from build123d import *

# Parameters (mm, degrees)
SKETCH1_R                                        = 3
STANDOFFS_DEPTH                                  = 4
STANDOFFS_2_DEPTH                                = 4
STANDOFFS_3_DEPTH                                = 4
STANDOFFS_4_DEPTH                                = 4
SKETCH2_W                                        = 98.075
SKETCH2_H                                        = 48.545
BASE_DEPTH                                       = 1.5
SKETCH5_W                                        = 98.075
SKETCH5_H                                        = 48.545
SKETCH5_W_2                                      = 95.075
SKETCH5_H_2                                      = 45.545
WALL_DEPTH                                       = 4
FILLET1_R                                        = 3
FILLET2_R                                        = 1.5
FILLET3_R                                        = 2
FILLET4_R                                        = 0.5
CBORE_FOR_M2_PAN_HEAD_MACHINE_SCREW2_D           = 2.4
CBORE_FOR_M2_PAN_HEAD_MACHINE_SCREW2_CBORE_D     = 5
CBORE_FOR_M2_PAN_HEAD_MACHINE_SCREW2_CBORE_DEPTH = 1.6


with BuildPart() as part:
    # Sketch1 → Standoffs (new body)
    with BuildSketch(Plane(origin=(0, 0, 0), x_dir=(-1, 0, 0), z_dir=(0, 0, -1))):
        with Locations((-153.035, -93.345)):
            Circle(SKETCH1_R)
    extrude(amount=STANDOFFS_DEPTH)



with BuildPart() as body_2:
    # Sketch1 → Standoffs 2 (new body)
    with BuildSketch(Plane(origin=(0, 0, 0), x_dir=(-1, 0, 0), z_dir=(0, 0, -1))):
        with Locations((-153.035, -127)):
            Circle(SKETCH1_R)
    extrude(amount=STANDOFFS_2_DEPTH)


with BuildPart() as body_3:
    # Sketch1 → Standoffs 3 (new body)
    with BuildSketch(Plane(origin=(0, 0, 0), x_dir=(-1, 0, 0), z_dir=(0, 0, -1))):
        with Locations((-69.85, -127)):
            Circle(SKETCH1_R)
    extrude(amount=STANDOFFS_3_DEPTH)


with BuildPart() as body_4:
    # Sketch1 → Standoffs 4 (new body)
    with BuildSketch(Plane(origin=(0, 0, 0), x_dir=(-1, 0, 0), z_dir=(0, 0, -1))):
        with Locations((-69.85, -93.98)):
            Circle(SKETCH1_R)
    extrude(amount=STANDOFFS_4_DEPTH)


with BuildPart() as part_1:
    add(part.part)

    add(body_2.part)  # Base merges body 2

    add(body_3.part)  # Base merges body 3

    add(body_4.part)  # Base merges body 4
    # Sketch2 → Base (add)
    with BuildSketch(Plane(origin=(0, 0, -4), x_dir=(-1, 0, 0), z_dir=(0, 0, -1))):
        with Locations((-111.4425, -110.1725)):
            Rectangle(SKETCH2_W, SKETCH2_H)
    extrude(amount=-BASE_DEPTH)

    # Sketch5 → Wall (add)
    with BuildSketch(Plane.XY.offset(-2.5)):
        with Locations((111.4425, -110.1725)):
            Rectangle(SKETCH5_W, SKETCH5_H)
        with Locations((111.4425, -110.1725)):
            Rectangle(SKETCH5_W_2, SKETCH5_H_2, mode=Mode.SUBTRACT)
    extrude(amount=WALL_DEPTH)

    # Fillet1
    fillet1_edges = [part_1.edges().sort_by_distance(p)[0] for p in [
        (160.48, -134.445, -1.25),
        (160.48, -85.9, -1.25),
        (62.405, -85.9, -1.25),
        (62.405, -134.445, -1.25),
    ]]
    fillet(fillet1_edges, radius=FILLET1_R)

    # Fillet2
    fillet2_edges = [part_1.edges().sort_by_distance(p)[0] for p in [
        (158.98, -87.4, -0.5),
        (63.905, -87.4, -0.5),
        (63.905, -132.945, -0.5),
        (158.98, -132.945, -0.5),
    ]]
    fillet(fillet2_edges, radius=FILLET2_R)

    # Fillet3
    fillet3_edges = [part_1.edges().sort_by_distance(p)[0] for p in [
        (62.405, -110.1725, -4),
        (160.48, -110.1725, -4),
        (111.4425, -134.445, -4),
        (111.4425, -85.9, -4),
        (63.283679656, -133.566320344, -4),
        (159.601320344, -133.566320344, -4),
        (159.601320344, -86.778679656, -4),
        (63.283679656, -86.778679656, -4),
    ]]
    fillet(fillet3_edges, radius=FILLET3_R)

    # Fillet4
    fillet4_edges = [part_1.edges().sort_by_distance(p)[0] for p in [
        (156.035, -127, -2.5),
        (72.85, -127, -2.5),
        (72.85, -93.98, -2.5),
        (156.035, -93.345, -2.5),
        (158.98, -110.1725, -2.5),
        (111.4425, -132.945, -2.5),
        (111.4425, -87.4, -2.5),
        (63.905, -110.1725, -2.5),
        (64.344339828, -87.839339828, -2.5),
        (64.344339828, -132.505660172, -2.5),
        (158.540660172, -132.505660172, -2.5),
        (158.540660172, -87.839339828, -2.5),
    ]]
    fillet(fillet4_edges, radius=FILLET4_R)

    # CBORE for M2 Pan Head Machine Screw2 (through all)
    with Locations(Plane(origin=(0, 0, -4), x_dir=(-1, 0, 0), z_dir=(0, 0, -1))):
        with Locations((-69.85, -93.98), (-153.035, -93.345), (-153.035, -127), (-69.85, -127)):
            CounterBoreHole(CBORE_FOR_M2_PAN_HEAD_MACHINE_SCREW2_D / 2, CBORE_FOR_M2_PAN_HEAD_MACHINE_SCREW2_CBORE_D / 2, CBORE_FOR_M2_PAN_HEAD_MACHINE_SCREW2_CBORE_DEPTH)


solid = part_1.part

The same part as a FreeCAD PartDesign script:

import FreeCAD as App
import Part
import Sketcher
from FreeCAD import Vector
Q = App.Units.Quantity


def edges_at(feature, points):
    """Names of the edges that pass closest to the given points."""
    edges = feature.Shape.Edges
    near = lambda p: min(range(len(edges)), key=lambda i: edges[i].distToShape(Part.Vertex(*p))[0])
    return sorted({f"Edge{near(p) + 1}" for p in points})

doc = App.newDocument("Part")
body = doc.addObject("PartDesign::Body", "Body")

# Sketch on XY plane
sketch1 = doc.addObject("Sketcher::SketchObject", "Sketch")
body.addObject(sketch1)
sketch1.AttachmentSupport = (doc.XY_Plane, [""])
sketch1.MapMode = "FlatFace"
sketch1.addGeometry(Part.Circle(Vector(153, -93.3, 0), Vector(0, 0, 1), 3), False)
sketch1.addConstraint([
    Sketcher.Constraint("Diameter", 0, Q("6 mm")),
    Sketcher.Constraint("DistanceX", -1, 1, 0, 3, Q("153.035 mm")),
    Sketcher.Constraint("DistanceY", 0, 3, -1, 1, Q("93.345 mm")),
])
pad1 = doc.addObject("PartDesign::Pad", "Pad")
body.addObject(pad1)
pad1.Profile = sketch1
pad1.Length = 4
pad1.Reversed = True
body2 = doc.addObject("PartDesign::Body", "Body001")

# Sketch on XY plane
sketch2 = doc.addObject("Sketcher::SketchObject", "Sketch001")
body2.addObject(sketch2)
sketch2.AttachmentSupport = (doc.getObject("XY_Plane001"), [""])
sketch2.MapMode = "FlatFace"
sketch2.addGeometry(Part.Circle(Vector(153, -127, 0), Vector(0, 0, 1), 3), False)
sketch2.addConstraint([
    Sketcher.Constraint("Diameter", 0, Q("6 mm")),
    Sketcher.Constraint("DistanceY", 0, 3, -1, 1, Q("127 mm")),
    Sketcher.Constraint("DistanceX", -1, 1, 0, 3, Q("153.035 mm")),
])
pad2 = doc.addObject("PartDesign::Pad", "Pad001")
body2.addObject(pad2)
pad2.Profile = sketch2
pad2.Length = 4
pad2.Reversed = True
body3 = doc.addObject("PartDesign::Body", "Body002")

# Sketch on XY plane
sketch3 = doc.addObject("Sketcher::SketchObject", "Sketch002")
body3.addObject(sketch3)
sketch3.AttachmentSupport = (doc.getObject("XY_Plane002"), [""])
sketch3.MapMode = "FlatFace"
sketch3.addGeometry(Part.Circle(Vector(69.8, -127, 0), Vector(0, 0, 1), 3), False)
sketch3.addConstraint([
    Sketcher.Constraint("Diameter", 0, Q("6 mm")),
    Sketcher.Constraint("DistanceY", 0, 3, -1, 1, Q("127 mm")),
    Sketcher.Constraint("DistanceX", -1, 1, 0, 3, Q("69.85 mm")),
])
pad3 = doc.addObject("PartDesign::Pad", "Pad002")
body3.addObject(pad3)
pad3.Profile = sketch3
pad3.Length = 4
pad3.Reversed = True
body4 = doc.addObject("PartDesign::Body", "Body003")

# Sketch on XY plane
sketch4 = doc.addObject("Sketcher::SketchObject", "Sketch003")
body4.addObject(sketch4)
sketch4.AttachmentSupport = (doc.getObject("XY_Plane003"), [""])
sketch4.MapMode = "FlatFace"
sketch4.addGeometry(Part.Circle(Vector(69.8, -94, 0), Vector(0, 0, 1), 3), False)
sketch4.addConstraint([
    Sketcher.Constraint("Diameter", 0, Q("6 mm")),
    Sketcher.Constraint("DistanceX", -1, 1, 0, 3, Q("69.85 mm")),
    Sketcher.Constraint("DistanceY", 0, 3, -1, 1, Q("93.98 mm")),
])
pad4 = doc.addObject("PartDesign::Pad", "Pad003")
body4.addObject(pad4)
pad4.Profile = sketch4
pad4.Length = 4
pad4.Reversed = True
body.AllowCompound = True
doc.recompute()

boolean = doc.addObject("PartDesign::Boolean", "Boolean")
body.addObject(boolean)
boolean.Type = "Fuse"
boolean.addObjects([body2])
doc.recompute()

boolean2 = doc.addObject("PartDesign::Boolean", "Boolean001")
body.addObject(boolean2)
boolean2.Type = "Fuse"
boolean2.addObjects([body3])
doc.recompute()

boolean3 = doc.addObject("PartDesign::Boolean", "Boolean002")
body.addObject(boolean3)
boolean3.Type = "Fuse"
boolean3.addObjects([body4])

# Sketch on XY plane
sketch5 = doc.addObject("Sketcher::SketchObject", "Sketch004")
body.addObject(sketch5)
sketch5.AttachmentSupport = (doc.XY_Plane, [""])
sketch5.MapMode = "FlatFace"
sketch5.AttachmentOffset = App.Placement(Vector(0, 0, -4), App.Rotation())
sketch5.addGeometry([
    Part.LineSegment(Vector(160, -86, 0), Vector(160, -134, 0)),
    Part.LineSegment(Vector(160, -134, 0), Vector(62, -134, 0)),
    Part.LineSegment(Vector(62, -134, 0), Vector(62, -86, 0)),
    Part.LineSegment(Vector(62, -86, 0), Vector(160, -86, 0)),
], False)
sketch5.addConstraint([
    Sketcher.Constraint("Coincident", 0, 2, 1, 1),
    Sketcher.Constraint("Coincident", 1, 2, 2, 1),
    Sketcher.Constraint("Coincident", 2, 2, 3, 1),
    Sketcher.Constraint("Coincident", 3, 2, 0, 1),
    Sketcher.Constraint("Vertical", 0),
    Sketcher.Constraint("Horizontal", 1),
    Sketcher.Constraint("Vertical", 2),
    Sketcher.Constraint("Horizontal", 3),
    Sketcher.Constraint("DistanceY", 2, 2, -1, 1, Q("85.9 mm")),
    Sketcher.Constraint("DistanceX", 1, 2, 1, 1, Q("98.075 mm")),
    Sketcher.Constraint("DistanceY", 0, 2, 0, 1, Q("48.545 mm")),
    Sketcher.Constraint("DistanceX", -1, 1, 0, 2, Q("160.48 mm")),
])
pad5 = doc.addObject("PartDesign::Pad", "Pad004")
body.addObject(pad5)
pad5.Profile = sketch5
pad5.Length = 1.5

# Sketch on XY plane
sketch6 = doc.addObject("Sketcher::SketchObject", "Sketch005")
body.addObject(sketch6)
sketch6.AttachmentSupport = (doc.XY_Plane, [""])
sketch6.MapMode = "FlatFace"
sketch6.AttachmentOffset = App.Placement(Vector(0, 0, -2.5), App.Rotation())
sketch6.addGeometry([
    Part.LineSegment(Vector(62, -86, 0), Vector(62, -134, 0)),  # 0
    Part.LineSegment(Vector(62, -134, 0), Vector(160, -134, 0)),  # 1
    Part.LineSegment(Vector(160, -134, 0), Vector(160, -86, 0)),  # 2
    Part.LineSegment(Vector(160, -86, 0), Vector(62, -86, 0)),  # 3
    Part.LineSegment(Vector(159, -133, 0), Vector(64, -133, 0)),  # 4
    Part.LineSegment(Vector(64, -133, 0), Vector(64, -87, 0)),  # 5
    Part.LineSegment(Vector(64, -87, 0), Vector(159, -87, 0)),  # 6
    Part.LineSegment(Vector(159, -87, 0), Vector(159, -133, 0)),  # 7
], False)
sketch6.addConstraint([
    Sketcher.Constraint("Coincident", 0, 2, 1, 1),
    Sketcher.Constraint("Coincident", 1, 2, 2, 1),
    Sketcher.Constraint("Coincident", 2, 2, 3, 1),
    Sketcher.Constraint("Coincident", 3, 2, 0, 1),
    Sketcher.Constraint("Coincident", 4, 2, 5, 1),
    Sketcher.Constraint("Coincident", 5, 2, 6, 1),
    Sketcher.Constraint("Coincident", 6, 2, 7, 1),
    Sketcher.Constraint("Coincident", 7, 2, 4, 1),
    Sketcher.Constraint("Vertical", 0),
    Sketcher.Constraint("Horizontal", 1),
    Sketcher.Constraint("Vertical", 2),
    Sketcher.Constraint("Horizontal", 3),
    Sketcher.Constraint("Horizontal", 4),
    Sketcher.Constraint("Vertical", 5),
    Sketcher.Constraint("Horizontal", 6),
    Sketcher.Constraint("Vertical", 7),
    Sketcher.Constraint("DistanceY", 2, 2, -1, 1, Q("85.9 mm")),
    Sketcher.Constraint("DistanceY", 5, 2, -1, 1, Q("87.4 mm")),
    Sketcher.Constraint("DistanceX", 0, 2, 4, 2, Q("1.5 mm")),
    Sketcher.Constraint("DistanceY", 0, 2, 4, 2, Q("1.5 mm")),
    Sketcher.Constraint("DistanceX", 6, 2, 2, 2, Q("1.5 mm")),
    Sketcher.Constraint("DistanceX", 1, 1, 1, 2, Q("98.075 mm")),
    Sketcher.Constraint("DistanceY", 0, 2, 0, 1, Q("48.545 mm")),
    Sketcher.Constraint("DistanceX", -1, 1, 1, 2, Q("160.48 mm")),
])
pad6 = doc.addObject("PartDesign::Pad", "Pad005")
body.addObject(pad6)
pad6.Profile = sketch6
pad6.Length = 4
doc.recompute()

fillet = doc.addObject("PartDesign::Fillet", "Fillet")
body.addObject(fillet)
fillet.Base = (pad6, edges_at(pad6, [
    (160.48, -134.445, -1.25),
    (160.48, -85.9, -1.25),
    (62.405, -85.9, -1.25),
    (62.405, -134.445, -1.25),
]))
fillet.Radius = 3
doc.recompute()

fillet2 = doc.addObject("PartDesign::Fillet", "Fillet001")
body.addObject(fillet2)
fillet2.Base = (fillet, edges_at(fillet, [
    (158.98, -87.4, -0.5),
    (63.905, -87.4, -0.5),
    (63.905, -132.945, -0.5),
    (158.98, -132.945, -0.5),
]))
fillet2.Radius = 1.5
doc.recompute()

fillet3 = doc.addObject("PartDesign::Fillet", "Fillet002")
body.addObject(fillet3)
fillet3.Base = (fillet2, edges_at(fillet2, [
    (62.405, -110.172, -4),
    (160.48, -110.172, -4),
    (111.442, -134.445, -4),
    (111.442, -85.9, -4),
    (63.284, -133.566, -4),
    (159.601, -133.566, -4),
    (159.601, -86.779, -4),
    (63.284, -86.779, -4),
]))
fillet3.Radius = 2
doc.recompute()

fillet4 = doc.addObject("PartDesign::Fillet", "Fillet003")
body.addObject(fillet4)
fillet4.Base = (fillet3, edges_at(fillet3, [
    (156.035, -127, -2.5),
    (72.85, -127, -2.5),
    (72.85, -93.98, -2.5),
    (156.035, -93.345, -2.5),
    (158.98, -110.172, -2.5),
    (111.442, -132.945, -2.5),
    (111.442, -87.4, -2.5),
    (63.905, -110.172, -2.5),
    (64.344, -87.839, -2.5),
    (64.344, -132.506, -2.5),
    (158.541, -132.506, -2.5),
    (158.541, -87.839, -2.5),
]))
fillet4.Radius = 0.5

# Sketch on XY plane
sketch7 = doc.addObject("Sketcher::SketchObject", "Sketch006")
body.addObject(sketch7)
sketch7.AttachmentSupport = (doc.XY_Plane, [""])
sketch7.MapMode = "FlatFace"
sketch7.AttachmentOffset = App.Placement(Vector(0, 0, -4), App.Rotation())
sketch7.addGeometry([
    Part.Circle(Vector(69.8, -94, 0), Vector(0, 0, 1), 1.2),
    Part.Circle(Vector(153, -93.3, 0), Vector(0, 0, 1), 1.2),
    Part.Circle(Vector(153, -127, 0), Vector(0, 0, 1), 1.2),
    Part.Circle(Vector(69.8, -127, 0), Vector(0, 0, 1), 1.2),
], False)
sketch7.addConstraint([
    Sketcher.Constraint("Equal", 0, 1),
    Sketcher.Constraint("Equal", 1, 2),
    Sketcher.Constraint("Equal", 2, 3),
    Sketcher.Constraint("Horizontal", 2, 3, 3, 3),
    Sketcher.Constraint("Vertical", 1, 3, 2, 3),
    Sketcher.Constraint("Vertical", 0, 3, 3, 3),
    Sketcher.Constraint("Diameter", 0, Q("2.4 mm")),
    Sketcher.Constraint("DistanceY", 2, 3, -1, 1, Q("127 mm")),
    Sketcher.Constraint("DistanceX", -1, 1, 0, 3, Q("69.85 mm")),
    Sketcher.Constraint("DistanceY", 0, 3, -1, 1, Q("93.98 mm")),
    Sketcher.Constraint("DistanceX", -1, 1, 1, 3, Q("153.035 mm")),
    Sketcher.Constraint("DistanceY", 1, 3, -1, 1, Q("93.345 mm")),
])
doc.recompute()
hole = doc.addObject("PartDesign::Hole", "Hole")
body.addObject(hole)
hole.Profile = sketch7
hole.ThreadType = "None"
hole.Diameter = 2.4
hole.DepthType = "ThroughAll"
hole.HoleCutType = "Counterbore"
hole.HoleCutDiameter = 5
hole.HoleCutDepth = 1.6
hole.Reversed = True

doc.recompute()
